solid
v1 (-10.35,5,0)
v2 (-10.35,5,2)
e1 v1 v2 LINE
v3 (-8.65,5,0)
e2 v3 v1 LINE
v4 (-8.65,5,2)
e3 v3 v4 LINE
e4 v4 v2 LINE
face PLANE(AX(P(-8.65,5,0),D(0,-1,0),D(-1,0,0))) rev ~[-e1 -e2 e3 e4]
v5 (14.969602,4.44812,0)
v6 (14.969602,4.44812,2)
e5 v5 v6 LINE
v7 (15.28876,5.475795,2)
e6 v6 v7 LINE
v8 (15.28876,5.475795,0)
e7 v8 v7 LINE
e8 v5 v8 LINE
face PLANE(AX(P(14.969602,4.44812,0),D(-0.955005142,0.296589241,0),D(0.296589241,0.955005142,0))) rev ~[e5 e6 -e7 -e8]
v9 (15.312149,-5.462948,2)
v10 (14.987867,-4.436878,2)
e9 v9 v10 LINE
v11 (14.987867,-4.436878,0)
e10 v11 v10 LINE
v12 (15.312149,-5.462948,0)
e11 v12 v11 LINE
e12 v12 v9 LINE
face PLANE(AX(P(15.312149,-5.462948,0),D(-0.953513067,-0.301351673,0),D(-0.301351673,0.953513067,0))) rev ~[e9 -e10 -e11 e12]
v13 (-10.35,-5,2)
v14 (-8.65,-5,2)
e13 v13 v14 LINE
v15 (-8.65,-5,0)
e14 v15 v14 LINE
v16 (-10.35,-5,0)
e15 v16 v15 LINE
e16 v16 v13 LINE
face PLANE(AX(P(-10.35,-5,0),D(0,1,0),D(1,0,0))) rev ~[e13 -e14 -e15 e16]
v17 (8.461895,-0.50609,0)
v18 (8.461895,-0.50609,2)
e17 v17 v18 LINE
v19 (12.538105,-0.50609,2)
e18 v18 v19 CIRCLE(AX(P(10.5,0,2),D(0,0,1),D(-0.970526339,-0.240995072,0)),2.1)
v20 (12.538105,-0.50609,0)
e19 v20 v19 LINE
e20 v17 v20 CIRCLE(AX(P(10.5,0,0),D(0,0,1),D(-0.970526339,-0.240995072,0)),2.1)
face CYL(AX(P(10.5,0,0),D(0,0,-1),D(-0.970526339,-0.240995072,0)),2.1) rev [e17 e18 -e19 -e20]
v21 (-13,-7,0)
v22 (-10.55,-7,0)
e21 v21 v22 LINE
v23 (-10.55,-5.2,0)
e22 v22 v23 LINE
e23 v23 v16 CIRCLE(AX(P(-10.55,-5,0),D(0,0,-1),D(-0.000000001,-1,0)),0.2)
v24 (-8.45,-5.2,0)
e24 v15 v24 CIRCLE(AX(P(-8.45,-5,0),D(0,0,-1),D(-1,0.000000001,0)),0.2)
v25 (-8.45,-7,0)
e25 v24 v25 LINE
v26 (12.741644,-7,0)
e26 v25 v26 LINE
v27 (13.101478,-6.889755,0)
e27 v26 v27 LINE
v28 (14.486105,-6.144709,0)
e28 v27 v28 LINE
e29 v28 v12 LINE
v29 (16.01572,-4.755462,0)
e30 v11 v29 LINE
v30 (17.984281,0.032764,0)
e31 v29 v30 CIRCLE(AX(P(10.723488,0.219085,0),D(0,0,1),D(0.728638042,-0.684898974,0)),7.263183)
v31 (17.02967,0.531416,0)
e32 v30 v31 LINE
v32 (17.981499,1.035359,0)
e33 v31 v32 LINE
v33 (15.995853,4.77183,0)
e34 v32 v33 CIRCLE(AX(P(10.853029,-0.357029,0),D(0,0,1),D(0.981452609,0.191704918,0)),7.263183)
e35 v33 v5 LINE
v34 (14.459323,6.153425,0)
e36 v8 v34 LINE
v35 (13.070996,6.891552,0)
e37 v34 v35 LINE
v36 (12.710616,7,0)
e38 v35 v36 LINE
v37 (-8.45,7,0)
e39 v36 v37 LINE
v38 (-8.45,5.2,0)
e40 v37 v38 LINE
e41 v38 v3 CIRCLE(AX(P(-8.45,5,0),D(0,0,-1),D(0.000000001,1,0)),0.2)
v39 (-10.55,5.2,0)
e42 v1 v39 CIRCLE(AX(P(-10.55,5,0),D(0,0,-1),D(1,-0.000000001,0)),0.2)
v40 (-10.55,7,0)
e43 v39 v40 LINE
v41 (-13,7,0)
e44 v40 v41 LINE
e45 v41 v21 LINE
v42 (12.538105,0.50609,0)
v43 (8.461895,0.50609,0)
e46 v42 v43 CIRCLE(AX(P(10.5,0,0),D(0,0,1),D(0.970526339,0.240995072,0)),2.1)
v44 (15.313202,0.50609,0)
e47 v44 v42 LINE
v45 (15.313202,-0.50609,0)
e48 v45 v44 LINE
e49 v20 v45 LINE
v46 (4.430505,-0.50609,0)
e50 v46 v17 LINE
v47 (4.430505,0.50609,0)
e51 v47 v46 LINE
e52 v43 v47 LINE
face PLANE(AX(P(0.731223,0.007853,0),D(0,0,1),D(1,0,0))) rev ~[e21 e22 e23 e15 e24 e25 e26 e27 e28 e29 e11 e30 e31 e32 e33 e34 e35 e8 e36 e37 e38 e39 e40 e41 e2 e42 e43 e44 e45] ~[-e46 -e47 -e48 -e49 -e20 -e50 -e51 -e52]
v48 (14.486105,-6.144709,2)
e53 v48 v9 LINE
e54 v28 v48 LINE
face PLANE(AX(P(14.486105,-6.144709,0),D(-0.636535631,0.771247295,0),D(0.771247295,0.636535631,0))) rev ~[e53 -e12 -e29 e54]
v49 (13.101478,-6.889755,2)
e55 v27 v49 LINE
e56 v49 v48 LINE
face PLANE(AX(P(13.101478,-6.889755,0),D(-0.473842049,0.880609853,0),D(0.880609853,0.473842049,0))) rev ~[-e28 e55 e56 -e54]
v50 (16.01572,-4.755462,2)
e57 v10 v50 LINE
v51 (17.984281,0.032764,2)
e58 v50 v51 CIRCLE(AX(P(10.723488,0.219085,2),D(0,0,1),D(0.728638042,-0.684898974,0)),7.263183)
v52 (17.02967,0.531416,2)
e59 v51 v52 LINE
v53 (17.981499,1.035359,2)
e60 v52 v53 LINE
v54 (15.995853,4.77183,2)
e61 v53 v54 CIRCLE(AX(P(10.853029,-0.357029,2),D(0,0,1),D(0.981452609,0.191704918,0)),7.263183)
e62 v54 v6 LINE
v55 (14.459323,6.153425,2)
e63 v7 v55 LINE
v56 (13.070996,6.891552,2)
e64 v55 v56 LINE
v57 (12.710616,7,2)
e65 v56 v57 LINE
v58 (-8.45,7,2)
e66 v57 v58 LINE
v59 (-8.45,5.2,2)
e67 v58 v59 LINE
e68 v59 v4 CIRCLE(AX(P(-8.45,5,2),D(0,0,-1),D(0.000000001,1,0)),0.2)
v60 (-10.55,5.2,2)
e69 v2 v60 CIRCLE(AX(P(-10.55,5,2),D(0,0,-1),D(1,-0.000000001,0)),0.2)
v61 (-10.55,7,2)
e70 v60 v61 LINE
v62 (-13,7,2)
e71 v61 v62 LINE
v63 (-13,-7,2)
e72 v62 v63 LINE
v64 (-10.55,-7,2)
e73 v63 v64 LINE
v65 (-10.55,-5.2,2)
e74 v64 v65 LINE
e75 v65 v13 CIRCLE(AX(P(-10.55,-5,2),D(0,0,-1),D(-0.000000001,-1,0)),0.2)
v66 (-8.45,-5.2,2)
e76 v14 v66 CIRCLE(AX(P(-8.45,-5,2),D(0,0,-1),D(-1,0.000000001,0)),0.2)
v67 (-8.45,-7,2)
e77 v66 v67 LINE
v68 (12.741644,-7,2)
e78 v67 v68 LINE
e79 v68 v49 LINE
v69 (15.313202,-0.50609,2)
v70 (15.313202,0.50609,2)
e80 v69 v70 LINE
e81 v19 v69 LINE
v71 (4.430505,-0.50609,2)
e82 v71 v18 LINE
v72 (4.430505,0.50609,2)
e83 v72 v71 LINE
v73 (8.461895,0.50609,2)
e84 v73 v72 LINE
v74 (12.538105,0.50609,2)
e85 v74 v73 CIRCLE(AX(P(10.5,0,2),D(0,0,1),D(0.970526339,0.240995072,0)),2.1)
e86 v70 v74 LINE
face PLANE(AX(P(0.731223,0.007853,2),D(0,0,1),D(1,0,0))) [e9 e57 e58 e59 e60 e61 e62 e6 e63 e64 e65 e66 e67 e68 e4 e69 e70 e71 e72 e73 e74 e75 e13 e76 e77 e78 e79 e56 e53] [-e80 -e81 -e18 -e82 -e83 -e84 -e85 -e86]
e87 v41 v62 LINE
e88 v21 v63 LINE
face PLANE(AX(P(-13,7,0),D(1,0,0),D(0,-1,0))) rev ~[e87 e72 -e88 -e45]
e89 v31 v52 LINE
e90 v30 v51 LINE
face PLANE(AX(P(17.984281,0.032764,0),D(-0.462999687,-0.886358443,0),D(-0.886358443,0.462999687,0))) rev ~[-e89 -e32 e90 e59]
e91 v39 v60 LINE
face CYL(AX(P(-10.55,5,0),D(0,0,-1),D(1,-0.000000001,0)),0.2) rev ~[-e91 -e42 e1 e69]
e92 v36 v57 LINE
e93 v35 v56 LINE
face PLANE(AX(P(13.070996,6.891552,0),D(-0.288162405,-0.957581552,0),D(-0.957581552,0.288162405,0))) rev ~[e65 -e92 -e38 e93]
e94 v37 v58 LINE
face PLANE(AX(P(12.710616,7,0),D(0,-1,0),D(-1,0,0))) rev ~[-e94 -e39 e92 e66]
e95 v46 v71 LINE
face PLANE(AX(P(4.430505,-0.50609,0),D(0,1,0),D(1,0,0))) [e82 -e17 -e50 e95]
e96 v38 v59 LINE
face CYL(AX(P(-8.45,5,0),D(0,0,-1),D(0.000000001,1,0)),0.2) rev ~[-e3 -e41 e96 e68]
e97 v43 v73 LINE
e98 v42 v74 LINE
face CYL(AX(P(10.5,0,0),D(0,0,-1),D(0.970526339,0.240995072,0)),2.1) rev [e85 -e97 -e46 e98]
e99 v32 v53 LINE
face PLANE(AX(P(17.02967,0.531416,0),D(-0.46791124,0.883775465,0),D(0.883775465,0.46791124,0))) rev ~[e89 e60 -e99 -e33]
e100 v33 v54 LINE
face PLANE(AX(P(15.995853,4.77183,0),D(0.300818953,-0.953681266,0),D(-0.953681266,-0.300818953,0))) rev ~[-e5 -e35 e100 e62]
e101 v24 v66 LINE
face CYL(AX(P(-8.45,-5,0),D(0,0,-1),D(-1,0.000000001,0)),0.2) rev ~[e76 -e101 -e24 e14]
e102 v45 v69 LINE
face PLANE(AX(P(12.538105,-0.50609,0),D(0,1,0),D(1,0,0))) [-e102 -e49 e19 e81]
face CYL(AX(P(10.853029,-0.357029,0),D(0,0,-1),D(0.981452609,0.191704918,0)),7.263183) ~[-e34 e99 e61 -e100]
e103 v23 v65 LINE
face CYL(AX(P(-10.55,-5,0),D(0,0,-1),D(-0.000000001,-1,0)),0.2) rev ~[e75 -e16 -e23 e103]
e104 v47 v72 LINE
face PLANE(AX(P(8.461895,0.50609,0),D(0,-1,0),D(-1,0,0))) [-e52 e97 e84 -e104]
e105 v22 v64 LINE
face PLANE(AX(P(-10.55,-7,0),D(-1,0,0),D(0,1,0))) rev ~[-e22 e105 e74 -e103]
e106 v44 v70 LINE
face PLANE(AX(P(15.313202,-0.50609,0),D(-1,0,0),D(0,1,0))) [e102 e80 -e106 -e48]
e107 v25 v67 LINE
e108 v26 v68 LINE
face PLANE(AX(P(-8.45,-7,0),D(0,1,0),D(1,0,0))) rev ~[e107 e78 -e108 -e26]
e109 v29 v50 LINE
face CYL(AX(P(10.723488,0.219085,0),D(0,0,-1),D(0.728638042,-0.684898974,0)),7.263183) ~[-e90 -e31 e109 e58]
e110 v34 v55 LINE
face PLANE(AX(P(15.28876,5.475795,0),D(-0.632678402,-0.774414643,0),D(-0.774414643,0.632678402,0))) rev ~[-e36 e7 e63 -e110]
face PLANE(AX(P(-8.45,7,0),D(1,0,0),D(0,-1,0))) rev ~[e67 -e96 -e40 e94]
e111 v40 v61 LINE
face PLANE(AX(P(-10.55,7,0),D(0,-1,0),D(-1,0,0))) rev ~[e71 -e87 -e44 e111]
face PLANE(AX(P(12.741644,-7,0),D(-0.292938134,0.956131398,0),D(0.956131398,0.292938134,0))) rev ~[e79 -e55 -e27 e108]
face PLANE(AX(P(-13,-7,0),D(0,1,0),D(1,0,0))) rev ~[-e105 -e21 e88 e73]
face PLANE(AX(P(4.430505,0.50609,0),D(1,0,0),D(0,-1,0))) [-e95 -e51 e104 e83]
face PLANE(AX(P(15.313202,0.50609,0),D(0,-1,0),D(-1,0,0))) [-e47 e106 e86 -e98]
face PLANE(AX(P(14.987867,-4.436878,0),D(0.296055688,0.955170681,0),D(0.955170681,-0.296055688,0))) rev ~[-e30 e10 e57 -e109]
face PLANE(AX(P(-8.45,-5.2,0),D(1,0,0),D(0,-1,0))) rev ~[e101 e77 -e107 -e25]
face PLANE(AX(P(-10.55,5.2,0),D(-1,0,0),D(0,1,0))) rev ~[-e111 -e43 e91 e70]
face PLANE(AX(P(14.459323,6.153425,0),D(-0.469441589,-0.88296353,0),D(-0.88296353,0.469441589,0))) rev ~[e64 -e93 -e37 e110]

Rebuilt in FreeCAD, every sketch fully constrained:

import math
import FreeCAD as App
import Part
import Sketcher

V = App.Vector
Q = App.Units.Quantity

doc = App.newDocument("Part")
body = doc.addObject("PartDesign::Body", "Body")

# Sketch on XY plane
sketch1 = body.newObject("Sketcher::SketchObject", "Sketch")
sketch1.AttachmentSupport = (doc.getObject("XY_Plane"), [""])
sketch1.MapMode = "FlatFace"
sketch1.addGeometry([
    Part.LineSegment(V(-8.45, -5.2, 0), V(-8.45, -7, 0)),  # 0
    Part.LineSegment(V(-8.45, -7, 0), V(12.74, -7, 0)),  # 1
    Part.LineSegment(V(12.74, -7, 0), V(13.1, -6.89, 0)),  # 2
    Part.LineSegment(V(13.1, -6.89, 0), V(14.49, -6.14, 0)),  # 3
    Part.LineSegment(V(14.49, -6.14, 0), V(15.31, -5.46, 0)),  # 4
    Part.LineSegment(V(15.31, -5.46, 0), V(14.99, -4.44, 0)),  # 5
    Part.LineSegment(V(14.99, -4.44, 0), V(16.02, -4.76, 0)),  # 6
    Part.ArcOfCircle(Part.Circle(V(10.72, 0.22, 0), V(0, 0, 1), 7.26), math.radians(-43), math.radians(-1)),  # 7
    Part.LineSegment(V(17.98, 0.03, 0), V(17.03, 0.53, 0)),  # 8
    Part.LineSegment(V(17.03, 0.53, 0), V(17.98, 1.04, 0)),  # 9
    Part.ArcOfCircle(Part.Circle(V(10.85, -0.36, 0), V(0, 0, 1), 7.26), math.radians(11), math.radians(45)),  # 10
    Part.LineSegment(V(16, 4.77, 0), V(14.97, 4.45, 0)),  # 11
    Part.LineSegment(V(14.97, 4.45, 0), V(15.29, 5.48, 0)),  # 12
    Part.LineSegment(V(15.29, 5.48, 0), V(14.46, 6.15, 0)),  # 13
    Part.LineSegment(V(14.46, 6.15, 0), V(13.07, 6.89, 0)),  # 14
    Part.LineSegment(V(13.07, 6.89, 0), V(12.71, 7, 0)),  # 15
    Part.LineSegment(V(12.71, 7, 0), V(-8.45, 7, 0)),  # 16
    Part.LineSegment(V(-8.45, 7, 0), V(-8.45, 5.2, 0)),  # 17
    Part.ArcOfCircle(Part.Circle(V(-8.45, 5, 0), V(0, 0, 1), 0.2), math.radians(180), math.radians(450)),  # 18
    Part.LineSegment(V(-8.65, 5, 0), V(-10.35, 5, 0)),  # 19
    Part.ArcOfCircle(Part.Circle(V(-10.55, 5, 0), V(0, 0, 1), 0.2), math.radians(90), math.radians(360)),  # 20
    Part.LineSegment(V(-10.55, 5.2, 0), V(-10.55, 7, 0)),  # 21
    Part.LineSegment(V(-10.55, 7, 0), V(-13, 7, 0)),  # 22
    Part.LineSegment(V(-13, 7, 0), V(-13, -7, 0)),  # 23
    Part.LineSegment(V(-13, -7, 0), V(-10.55, -7, 0)),  # 24
    Part.LineSegment(V(-10.55, -7, 0), V(-10.55, -5.2, 0)),  # 25
    Part.ArcOfCircle(Part.Circle(V(-10.55, -5, 0), V(0, 0, 1), 0.2), math.radians(0), math.radians(270)),  # 26
    Part.LineSegment(V(-10.35, -5, 0), V(-8.65, -5, 0)),  # 27
    Part.ArcOfCircle(Part.Circle(V(-8.45, -5, 0), V(0, 0, 1), 0.2), math.radians(-90), math.radians(180)),  # 28
    Part.LineSegment(V(4.43, 0.51, 0), V(8.46, 0.51, 0)),  # 29
    Part.ArcOfCircle(Part.Circle(V(10.5, 0, 0), V(0, 0, 1), 2.1), math.radians(14), math.radians(166)),  # 30
    Part.LineSegment(V(12.54, 0.51, 0), V(15.31, 0.51, 0)),  # 31
    Part.LineSegment(V(15.31, 0.51, 0), V(15.31, -0.51, 0)),  # 32
    Part.LineSegment(V(15.31, -0.51, 0), V(12.54, -0.51, 0)),  # 33
    Part.ArcOfCircle(Part.Circle(V(10.5, 0, 0), V(0, 0, 1), 2.1), math.radians(-166), math.radians(-14)),  # 34
    Part.LineSegment(V(8.46, -0.51, 0), V(4.43, -0.51, 0)),  # 35
    Part.LineSegment(V(4.43, -0.51, 0), V(4.43, 0.51, 0)),  # 36
], False)
sketch1.addConstraint([
    Sketcher.Constraint("Coincident", 0, 2, 1, 1),
    Sketcher.Constraint("Coincident", 1, 2, 2, 1),
    Sketcher.Constraint("Coincident", 2, 2, 3, 1),
    Sketcher.Constraint("Coincident", 3, 2, 4, 1),
    Sketcher.Constraint("Coincident", 4, 2, 5, 1),
    Sketcher.Constraint("Coincident", 5, 2, 6, 1),
    Sketcher.Constraint("Coincident", 6, 2, 7, 1),
    Sketcher.Constraint("Coincident", 7, 2, 8, 1),
    Sketcher.Constraint("Coincident", 8, 2, 9, 1),
    Sketcher.Constraint("Coincident", 9, 2, 10, 1),
    Sketcher.Constraint("Coincident", 10, 2, 11, 1),
    Sketcher.Constraint("Coincident", 11, 2, 12, 1),
    Sketcher.Constraint("Coincident", 12, 2, 13, 1),
    Sketcher.Constraint("Coincident", 13, 2, 14, 1),
    Sketcher.Constraint("Coincident", 14, 2, 15, 1),
    Sketcher.Constraint("Coincident", 15, 2, 16, 1),
    Sketcher.Constraint("Coincident", 16, 2, 17, 1),
    Sketcher.Constraint("Coincident", 17, 2, 18, 2),
    Sketcher.Constraint("Coincident", 18, 1, 19, 1),
    Sketcher.Constraint("Coincident", 19, 2, 20, 2),
    Sketcher.Constraint("Coincident", 20, 1, 21, 1),
    Sketcher.Constraint("Coincident", 21, 2, 22, 1),
    Sketcher.Constraint("Coincident", 22, 2, 23, 1),
    Sketcher.Constraint("Coincident", 23, 2, 24, 1),
    Sketcher.Constraint("Coincident", 24, 2, 25, 1),
    Sketcher.Constraint("Coincident", 25, 2, 26, 2),
    Sketcher.Constraint("Coincident", 26, 1, 27, 1),
    Sketcher.Constraint("Coincident", 27, 2, 28, 2),
    Sketcher.Constraint("Coincident", 28, 1, 0, 1),
    Sketcher.Constraint("Coincident", 29, 2, 30, 2),
    Sketcher.Constraint("Coincident", 30, 1, 31, 1),
    Sketcher.Constraint("Coincident", 31, 2, 32, 1),
    Sketcher.Constraint("Coincident", 32, 2, 33, 1),
    Sketcher.Constraint("Coincident", 33, 2, 34, 2),
    Sketcher.Constraint("Coincident", 34, 1, 35, 1),
    Sketcher.Constraint("Coincident", 35, 2, 36, 1),
    Sketcher.Constraint("Coincident", 36, 2, 29, 1),
    Sketcher.Constraint("Vertical", 0),
    Sketcher.Constraint("Horizontal", 1),
    Sketcher.Constraint("Horizontal", 16),
    Sketcher.Constraint("Vertical", 17),
    Sketcher.Constraint("Horizontal", 19),
    Sketcher.Constraint("Vertical", 21),
    Sketcher.Constraint("Horizontal", 22),
    Sketcher.Constraint("Vertical", 23),
    Sketcher.Constraint("Horizontal", 24),
    Sketcher.Constraint("Vertical", 25),
    Sketcher.Constraint("Horizontal", 27),
    Sketcher.Constraint("Horizontal", 29),
    Sketcher.Constraint("Horizontal", 31),
    Sketcher.Constraint("Vertical", 32),
    Sketcher.Constraint("Horizontal", 33),
    Sketcher.Constraint("Horizontal", 35),
    Sketcher.Constraint("Vertical", 36),
    Sketcher.Constraint("Coincident", 34, 3, 30, 3),
    Sketcher.Constraint("Equal", 7, 10),
    Sketcher.Constraint("Equal", 18, 20),
    Sketcher.Constraint("Equal", 20, 26),
    Sketcher.Constraint("Equal", 26, 28),
    Sketcher.Constraint("Equal", 30, 34),
    Sketcher.Constraint("Symmetric", 20, 3, 26, 3, -1),
    Sketcher.Constraint("Symmetric", 18, 3, 28, 3, -1),
    Sketcher.Constraint("Symmetric", 0, 2, 16, 2, -1),
    Sketcher.Constraint("Symmetric", 21, 2, 24, 2, -1),
    Sketcher.Constraint("Symmetric", 30, 1, 33, 2, -1),
    Sketcher.Constraint("Horizontal", 18, 3, 20, 3),
    Sketcher.Constraint("Horizontal", 20, 3, 18, 1),
    Sketcher.Constraint("Horizontal", 16, 2, 21, 2),
    Sketcher.Constraint("Horizontal", 28, 3, 26, 1),
    Sketcher.Constraint("Horizontal", 29, 2, 30, 1),
    Sketcher.Constraint("Horizontal", 33, 2, 34, 1),
    Sketcher.Constraint("Vertical", 28, 3, 0, 2),
    Sketcher.Constraint("Vertical", 26, 3, 20, 1),
    Sketcher.Constraint("Equal", 5, 6),
    Sketcher.Constraint("Equal", 8, 9),
    Sketcher.Constraint("Equal", 6, 11),
    Sketcher.Constraint("Equal", 11, 12),
    Sketcher.Constraint("Equal", 4, 13),
    Sketcher.Constraint("Equal", 3, 14),
    Sketcher.Constraint("Equal", 2, 15),
    Sketcher.Constraint("Radius", 18, Q("0.2 mm")),
    Sketcher.Constraint("Radius", 30, Q("2.1 mm")),
    Sketcher.Constraint("DistanceY", 23, 2, 23, 1, Q("14 mm")),
    Sketcher.Constraint("DistanceX", 19, 2, 19, 1, Q("1.7 mm")),
    Sketcher.Constraint("DistanceY", 0, 2, 0, 1, Q("1.8 mm")),
    Sketcher.Constraint("DistanceX", 22, 2, -1, 1, Q("13 mm")),
    Sketcher.Constraint("DistanceX", 22, 2, 22, 1, Q("2.45 mm")),
    Sketcher.Constraint("DistanceX", -1, 1, 30, 3, Q("10.5 mm")),
    Sketcher.Constraint("Radius", 7, Q("7.263183 mm")),
    Sketcher.Constraint("DistanceX", 29, 1, 29, 2, Q("4.03139 mm")),
    Sketcher.Constraint("DistanceY", 32, 2, 32, 1, Q("1.012179 mm")),
    Sketcher.Constraint("DistanceX", -1, 1, 9, 2, Q("17.981499 mm")),
    Sketcher.Constraint("DistanceX", -1, 1, 31, 2, Q("15.313202 mm")),
    Sketcher.Constraint("DistanceX", 11, 2, 31, 2, Q("0.343599 mm")),
    Sketcher.Constraint("Distance", 3, Q("1.57235 mm")),
    Sketcher.Constraint("Distance", 4, Q("1.07105 mm")),
    Sketcher.Constraint("DistanceX", 1, 1, 1, 2, Q("21.191644 mm")),
    Sketcher.Constraint("DistanceX", 16, 2, 16, 1, Q("21.160616 mm")),
    Sketcher.Constraint("DistanceX", -1, 1, 7, 3, Q("10.723488 mm")),
    Sketcher.Constraint("DistanceX", -1, 1, 10, 3, Q("10.853029 mm")),
    Sketcher.Constraint("DistanceY", 10, 3, -1, 1, Q("0.357029 mm")),
    Sketcher.Constraint("DistanceX", -1, 1, 2, 2, Q("13.101478 mm")),
    Sketcher.Constraint("DistanceY", 3, 2, -1, 1, Q("6.144709 mm")),
    Sketcher.Constraint("DistanceX", -1, 1, 4, 2, Q("15.312149 mm")),
    Sketcher.Constraint("DistanceY", 5, 2, -1, 1, Q("4.436878 mm")),
    Sketcher.Constraint("DistanceX", -1, 1, 6, 2, Q("16.01572 mm")),
    Sketcher.Constraint("DistanceY", 6, 2, -1, 1, Q("4.755462 mm")),
    Sketcher.Constraint("DistanceX", -1, 1, 7, 2, Q("17.984281 mm")),
    Sketcher.Constraint("DistanceX", -1, 1, 8, 2, Q("17.02967 mm")),
    Sketcher.Constraint("DistanceY", -1, 1, 10, 2, Q("4.77183 mm")),
    Sketcher.Constraint("DistanceY", -1, 1, 11, 2, Q("4.44812 mm")),
    Sketcher.Constraint("DistanceX", -1, 1, 12, 2, Q("15.28876 mm")),
    Sketcher.Constraint("DistanceY", -1, 1, 14, 2, Q("6.891552 mm")),
])
pad1 = body.newObject("PartDesign::Pad", "Pad")
pad1.Profile = sketch1
pad1.Length = 2

doc.recompute()
